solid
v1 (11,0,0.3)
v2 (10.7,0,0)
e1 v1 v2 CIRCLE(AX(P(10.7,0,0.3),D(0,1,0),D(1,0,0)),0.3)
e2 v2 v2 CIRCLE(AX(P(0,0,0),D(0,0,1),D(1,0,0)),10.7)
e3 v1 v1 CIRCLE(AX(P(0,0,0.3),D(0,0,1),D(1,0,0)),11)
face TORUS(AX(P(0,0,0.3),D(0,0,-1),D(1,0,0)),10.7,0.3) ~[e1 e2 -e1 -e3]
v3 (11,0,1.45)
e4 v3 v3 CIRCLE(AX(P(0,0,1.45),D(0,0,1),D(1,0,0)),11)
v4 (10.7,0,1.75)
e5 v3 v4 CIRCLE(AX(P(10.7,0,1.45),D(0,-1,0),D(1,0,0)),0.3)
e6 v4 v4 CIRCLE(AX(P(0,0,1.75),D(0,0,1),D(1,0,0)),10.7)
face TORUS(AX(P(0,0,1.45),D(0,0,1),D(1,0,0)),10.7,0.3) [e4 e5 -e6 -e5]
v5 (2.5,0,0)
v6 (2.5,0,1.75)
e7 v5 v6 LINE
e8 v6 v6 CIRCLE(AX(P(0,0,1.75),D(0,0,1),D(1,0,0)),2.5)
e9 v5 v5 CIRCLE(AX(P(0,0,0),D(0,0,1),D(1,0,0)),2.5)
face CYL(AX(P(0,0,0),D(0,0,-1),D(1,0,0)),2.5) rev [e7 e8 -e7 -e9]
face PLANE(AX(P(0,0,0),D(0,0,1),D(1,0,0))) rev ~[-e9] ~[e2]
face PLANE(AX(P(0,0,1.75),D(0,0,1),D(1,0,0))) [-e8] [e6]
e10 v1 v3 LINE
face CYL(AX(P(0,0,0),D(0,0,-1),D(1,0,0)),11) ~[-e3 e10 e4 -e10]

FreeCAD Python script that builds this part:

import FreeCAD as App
import Part
import Sketcher
from FreeCAD import Vector


def edges_at(feature, points):
    """Names of the edges that pass closest to the given points."""
    edges = feature.Shape.Edges
    near = lambda p: min(range(len(edges)), key=lambda i: edges[i].distToShape(Part.Vertex(*p))[0])
    return sorted({f"Edge{near(p) + 1}" for p in points})

doc = App.newDocument("Part")
body = doc.addObject("PartDesign::Body", "Body")

# Sketch on XY plane
sketch1 = body.newObject("Sketcher::SketchObject", "Sketch")
sketch1.AttachmentSupport = (doc.getObject("XY_Plane"), [""])
sketch1.MapMode = "FlatFace"
sketch1.addGeometry([
    Part.Circle(Vector(0, 0, 0), Vector(0, 0, 1), 11),
    Part.Circle(Vector(0, 0, 0), Vector(0, 0, 1), 2.5),
], False)
sketch1.addConstraint([
    Sketcher.Constraint("Coincident", 0, 3, -1, 1),
    Sketcher.Constraint("Coincident", 1, 3, -1, 1),
    Sketcher.Constraint("Diameter", 0, 22.0),
    Sketcher.Constraint("Diameter", 1, 5.0),
])
pad1 = body.newObject("PartDesign::Pad", "Pad")
pad1.Profile = sketch1
pad1.Length = 1.75
doc.recompute()

fillet = body.newObject("PartDesign::Fillet", "Fillet")
fillet.Base = (pad1, edges_at(pad1, [(-11, 0, 1.75), (-11, 0, 0)]))
fillet.Radius = 0.3

doc.recompute()
